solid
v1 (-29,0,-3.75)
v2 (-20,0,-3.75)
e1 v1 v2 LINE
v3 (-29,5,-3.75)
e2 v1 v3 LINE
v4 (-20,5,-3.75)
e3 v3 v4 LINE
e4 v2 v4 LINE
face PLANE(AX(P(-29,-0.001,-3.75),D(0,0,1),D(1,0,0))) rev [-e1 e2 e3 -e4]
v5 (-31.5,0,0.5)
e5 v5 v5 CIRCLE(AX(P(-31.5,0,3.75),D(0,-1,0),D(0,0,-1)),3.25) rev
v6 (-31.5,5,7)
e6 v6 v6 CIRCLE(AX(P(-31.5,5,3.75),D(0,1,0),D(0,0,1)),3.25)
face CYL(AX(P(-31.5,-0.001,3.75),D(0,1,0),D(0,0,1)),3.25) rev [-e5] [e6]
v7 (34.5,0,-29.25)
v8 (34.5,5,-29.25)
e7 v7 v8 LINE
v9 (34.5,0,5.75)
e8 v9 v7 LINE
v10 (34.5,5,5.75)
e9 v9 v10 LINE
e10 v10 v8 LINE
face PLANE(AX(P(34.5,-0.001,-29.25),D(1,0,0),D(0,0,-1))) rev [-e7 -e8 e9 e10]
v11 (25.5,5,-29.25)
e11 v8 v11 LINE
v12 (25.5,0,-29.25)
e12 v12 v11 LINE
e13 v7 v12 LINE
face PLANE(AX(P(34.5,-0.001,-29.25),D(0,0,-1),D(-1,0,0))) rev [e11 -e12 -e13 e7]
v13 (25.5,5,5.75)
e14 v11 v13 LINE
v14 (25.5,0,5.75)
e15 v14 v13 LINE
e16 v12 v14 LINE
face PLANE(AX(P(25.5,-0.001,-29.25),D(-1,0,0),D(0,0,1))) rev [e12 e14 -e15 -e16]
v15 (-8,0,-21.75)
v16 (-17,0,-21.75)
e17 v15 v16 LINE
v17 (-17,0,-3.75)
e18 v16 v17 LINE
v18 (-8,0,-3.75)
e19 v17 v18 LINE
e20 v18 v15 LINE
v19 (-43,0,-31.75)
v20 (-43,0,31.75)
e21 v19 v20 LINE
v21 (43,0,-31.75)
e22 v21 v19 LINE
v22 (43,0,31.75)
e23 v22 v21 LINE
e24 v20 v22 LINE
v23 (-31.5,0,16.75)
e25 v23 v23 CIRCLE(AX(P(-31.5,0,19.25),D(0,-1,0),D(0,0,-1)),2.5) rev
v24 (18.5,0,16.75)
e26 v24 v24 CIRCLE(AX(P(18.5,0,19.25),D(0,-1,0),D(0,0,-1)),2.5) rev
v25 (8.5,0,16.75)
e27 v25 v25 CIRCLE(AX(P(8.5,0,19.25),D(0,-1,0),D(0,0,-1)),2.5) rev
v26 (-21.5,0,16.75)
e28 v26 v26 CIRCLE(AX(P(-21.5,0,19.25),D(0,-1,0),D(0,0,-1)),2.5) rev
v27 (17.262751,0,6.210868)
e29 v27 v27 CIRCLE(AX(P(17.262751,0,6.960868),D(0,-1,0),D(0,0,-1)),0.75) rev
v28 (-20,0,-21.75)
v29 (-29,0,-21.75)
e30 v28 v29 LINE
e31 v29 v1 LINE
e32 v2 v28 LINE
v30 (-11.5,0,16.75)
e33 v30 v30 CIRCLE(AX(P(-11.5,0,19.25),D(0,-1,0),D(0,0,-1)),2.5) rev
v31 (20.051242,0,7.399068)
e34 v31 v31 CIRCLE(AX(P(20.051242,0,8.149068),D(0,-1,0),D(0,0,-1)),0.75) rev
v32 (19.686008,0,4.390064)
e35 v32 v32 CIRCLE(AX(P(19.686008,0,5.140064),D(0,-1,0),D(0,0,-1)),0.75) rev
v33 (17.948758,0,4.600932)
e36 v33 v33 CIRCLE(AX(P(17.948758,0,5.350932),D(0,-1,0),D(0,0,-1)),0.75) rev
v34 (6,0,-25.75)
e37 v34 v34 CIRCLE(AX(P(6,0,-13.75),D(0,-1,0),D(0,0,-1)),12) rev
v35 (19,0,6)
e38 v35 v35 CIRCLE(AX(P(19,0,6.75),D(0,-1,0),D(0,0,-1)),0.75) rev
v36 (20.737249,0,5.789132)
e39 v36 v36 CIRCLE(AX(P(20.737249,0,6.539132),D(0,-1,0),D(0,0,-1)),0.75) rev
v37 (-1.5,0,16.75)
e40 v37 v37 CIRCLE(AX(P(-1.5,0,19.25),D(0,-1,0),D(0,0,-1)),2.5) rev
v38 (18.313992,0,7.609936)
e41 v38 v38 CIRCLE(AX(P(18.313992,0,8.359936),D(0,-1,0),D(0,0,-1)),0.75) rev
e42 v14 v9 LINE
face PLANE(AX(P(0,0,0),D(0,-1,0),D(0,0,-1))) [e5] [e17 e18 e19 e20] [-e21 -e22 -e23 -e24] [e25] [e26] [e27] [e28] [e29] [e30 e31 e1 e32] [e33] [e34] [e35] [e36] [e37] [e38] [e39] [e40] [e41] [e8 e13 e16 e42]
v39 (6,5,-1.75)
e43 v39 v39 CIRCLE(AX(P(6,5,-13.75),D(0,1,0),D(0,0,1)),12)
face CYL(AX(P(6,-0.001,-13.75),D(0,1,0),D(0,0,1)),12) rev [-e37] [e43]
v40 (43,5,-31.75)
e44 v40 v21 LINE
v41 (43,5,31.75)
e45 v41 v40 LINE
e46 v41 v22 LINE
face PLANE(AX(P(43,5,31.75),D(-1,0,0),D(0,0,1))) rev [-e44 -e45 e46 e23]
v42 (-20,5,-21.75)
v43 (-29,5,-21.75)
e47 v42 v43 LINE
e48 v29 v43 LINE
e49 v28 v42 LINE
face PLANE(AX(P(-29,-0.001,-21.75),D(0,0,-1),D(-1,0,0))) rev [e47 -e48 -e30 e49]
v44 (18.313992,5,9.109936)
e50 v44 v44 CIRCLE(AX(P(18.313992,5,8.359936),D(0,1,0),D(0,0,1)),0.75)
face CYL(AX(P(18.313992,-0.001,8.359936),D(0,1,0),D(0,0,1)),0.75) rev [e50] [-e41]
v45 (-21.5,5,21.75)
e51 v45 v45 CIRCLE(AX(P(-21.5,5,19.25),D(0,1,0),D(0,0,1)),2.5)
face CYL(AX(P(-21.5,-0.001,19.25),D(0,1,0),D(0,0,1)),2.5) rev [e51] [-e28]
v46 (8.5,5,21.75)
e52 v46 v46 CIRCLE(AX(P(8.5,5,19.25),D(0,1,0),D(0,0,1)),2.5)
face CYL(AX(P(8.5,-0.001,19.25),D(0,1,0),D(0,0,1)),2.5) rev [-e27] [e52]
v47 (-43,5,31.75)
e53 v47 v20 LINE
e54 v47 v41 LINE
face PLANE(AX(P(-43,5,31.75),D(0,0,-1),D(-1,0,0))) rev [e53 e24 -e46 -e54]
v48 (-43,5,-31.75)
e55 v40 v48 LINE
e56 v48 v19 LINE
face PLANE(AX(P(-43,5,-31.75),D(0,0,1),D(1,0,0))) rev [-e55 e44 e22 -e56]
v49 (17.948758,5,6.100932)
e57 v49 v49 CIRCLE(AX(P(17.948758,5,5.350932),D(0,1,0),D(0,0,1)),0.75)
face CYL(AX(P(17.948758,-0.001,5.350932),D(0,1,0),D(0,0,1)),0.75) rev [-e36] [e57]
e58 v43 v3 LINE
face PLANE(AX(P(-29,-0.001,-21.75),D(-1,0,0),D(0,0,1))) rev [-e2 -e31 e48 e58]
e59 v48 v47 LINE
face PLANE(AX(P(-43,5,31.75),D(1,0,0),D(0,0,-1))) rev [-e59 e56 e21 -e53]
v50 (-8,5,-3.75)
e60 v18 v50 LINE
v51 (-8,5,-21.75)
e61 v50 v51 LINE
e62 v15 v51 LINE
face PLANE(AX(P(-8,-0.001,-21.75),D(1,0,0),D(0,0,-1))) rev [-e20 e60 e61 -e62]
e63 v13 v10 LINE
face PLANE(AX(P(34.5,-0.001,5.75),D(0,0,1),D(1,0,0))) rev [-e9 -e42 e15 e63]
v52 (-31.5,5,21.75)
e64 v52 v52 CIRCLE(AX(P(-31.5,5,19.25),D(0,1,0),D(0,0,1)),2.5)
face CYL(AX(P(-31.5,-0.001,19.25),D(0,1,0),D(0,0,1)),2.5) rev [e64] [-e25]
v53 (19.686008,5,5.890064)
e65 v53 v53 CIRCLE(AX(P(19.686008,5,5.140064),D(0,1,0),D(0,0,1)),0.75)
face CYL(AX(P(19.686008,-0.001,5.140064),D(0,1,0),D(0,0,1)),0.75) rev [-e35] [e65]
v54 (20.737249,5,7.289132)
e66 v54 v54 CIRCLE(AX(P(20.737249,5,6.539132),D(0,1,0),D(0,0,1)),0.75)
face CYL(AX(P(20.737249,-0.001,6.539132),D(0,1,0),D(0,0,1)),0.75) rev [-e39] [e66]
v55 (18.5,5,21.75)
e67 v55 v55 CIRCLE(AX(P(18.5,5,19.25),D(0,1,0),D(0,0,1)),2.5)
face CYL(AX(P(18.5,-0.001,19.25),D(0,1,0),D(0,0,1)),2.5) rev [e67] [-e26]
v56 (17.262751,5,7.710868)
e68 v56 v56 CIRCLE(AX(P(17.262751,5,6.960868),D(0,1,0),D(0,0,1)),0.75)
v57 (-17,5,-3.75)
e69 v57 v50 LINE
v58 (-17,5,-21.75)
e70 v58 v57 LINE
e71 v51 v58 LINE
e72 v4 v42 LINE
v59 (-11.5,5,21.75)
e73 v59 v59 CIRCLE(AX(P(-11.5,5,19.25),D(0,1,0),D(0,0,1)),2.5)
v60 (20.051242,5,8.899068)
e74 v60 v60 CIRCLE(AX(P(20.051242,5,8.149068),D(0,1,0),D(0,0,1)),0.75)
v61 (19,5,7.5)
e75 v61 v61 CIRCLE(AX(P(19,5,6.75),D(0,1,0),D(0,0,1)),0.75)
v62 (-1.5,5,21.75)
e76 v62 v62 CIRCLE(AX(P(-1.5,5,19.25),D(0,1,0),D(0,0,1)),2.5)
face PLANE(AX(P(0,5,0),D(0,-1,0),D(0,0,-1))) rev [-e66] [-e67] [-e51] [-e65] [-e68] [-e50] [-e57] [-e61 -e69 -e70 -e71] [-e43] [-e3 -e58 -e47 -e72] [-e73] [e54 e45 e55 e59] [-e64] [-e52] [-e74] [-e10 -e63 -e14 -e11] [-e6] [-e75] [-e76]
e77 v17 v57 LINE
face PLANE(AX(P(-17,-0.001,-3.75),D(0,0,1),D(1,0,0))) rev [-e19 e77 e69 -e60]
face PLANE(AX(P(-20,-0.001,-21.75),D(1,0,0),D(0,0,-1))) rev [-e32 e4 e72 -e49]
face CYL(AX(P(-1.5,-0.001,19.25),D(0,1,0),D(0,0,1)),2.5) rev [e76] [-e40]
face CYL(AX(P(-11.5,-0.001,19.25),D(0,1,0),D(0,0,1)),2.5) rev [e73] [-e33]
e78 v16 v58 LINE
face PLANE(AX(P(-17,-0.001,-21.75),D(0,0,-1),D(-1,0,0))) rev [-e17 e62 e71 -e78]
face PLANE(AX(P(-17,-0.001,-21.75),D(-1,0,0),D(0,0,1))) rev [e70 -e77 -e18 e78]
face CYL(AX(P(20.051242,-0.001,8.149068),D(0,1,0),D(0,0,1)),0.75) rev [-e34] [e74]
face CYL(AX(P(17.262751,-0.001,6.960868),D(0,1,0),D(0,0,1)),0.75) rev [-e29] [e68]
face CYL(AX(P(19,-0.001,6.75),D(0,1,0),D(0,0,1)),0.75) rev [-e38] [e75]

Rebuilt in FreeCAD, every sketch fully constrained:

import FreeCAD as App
import Part
import Sketcher


def add_polygon(sketch, points):
    """Adds a closed chain of lines whose ends are joined by coincident constraints."""
    first, n = sketch.GeometryCount, len(points)
    for a, b in zip(points, points[1:] + points[:1]):
        sketch.addGeometry(Part.LineSegment(App.Vector(*a, 0), App.Vector(*b, 0)), False)
    for i in range(n):
        sketch.addConstraint(Sketcher.Constraint("Coincident", first + i, 2, first + (i + 1) % n, 1))

doc = App.newDocument("Part")
params = doc.addObject("Spreadsheet::Sheet", "Params")
for row, (alias, value) in enumerate([
    ("sketch1_width", "86 mm"),
    ("sketch1_height", "63.5 mm"),
    ("pad1_length", "5 mm"),
    ("sketch2_diameter", "5 mm"),
    ("sketch3_diameter", "5 mm"),
    ("sketch4_diameter", "5 mm"),
    ("sketch5_diameter", "5 mm"),
    ("sketch6_diameter", "5 mm"),
    ("sketch7_diameter", "5 mm"),
    ("sketch8_diameter", "6.5 mm"),
    ("sketch9_diameter", "24 mm"),
    ("sketch10_diameter", "1.5 mm"),
    ("sketch11_diameter", "1.5 mm"),
    ("sketch12_diameter", "1.5 mm"),
    ("sketch13_diameter", "1.5 mm"),
    ("sketch14_diameter", "1.5 mm"),
    ("sketch15_diameter", "1.5 mm"),
    ("sketch16_diameter", "1.5 mm"),
    ("sketch17_width", "9 mm"),
    ("sketch17_height", "18 mm"),
    ("sketch18_width", "9 mm"),
    ("sketch18_height", "18 mm"),
    ("sketch19_width", "9 mm"),
    ("sketch19_height", "35 mm"),
], start=1):
    params.set(f"A{row}", alias)
    params.set(f"B{row}", "=" + value)
    params.setAlias(f"B{row}", alias)

body = doc.addObject("PartDesign::Body", "Body")

# Sketch on XZ plane
sketch1 = body.newObject("Sketcher::SketchObject", "Sketch")
sketch1.AttachmentSupport = (doc.getObject("XZ_Plane"), [""])
sketch1.MapMode = "FlatFace"
add_polygon(sketch1, [(-43, -32), (-43, 32), (43, 32), (43, -32)])  # lines 0-3
sketch1.addConstraint([
    Sketcher.Constraint("Vertical", 0),
    Sketcher.Constraint("Horizontal", 1),
    Sketcher.Constraint("Vertical", 2),
    Sketcher.Constraint("Horizontal", 3),
    Sketcher.Constraint("Symmetric", 0, 2, 2, 2, -1, 1),
    Sketcher.Constraint("DistanceX", 1, 1, 1, 2, 86.0),
    Sketcher.Constraint("DistanceY", 0, 1, 0, 2, 63.5),
])
sketch1.setExpression("Constraints[9]", "Params.sketch1_width")
sketch1.setExpression("Constraints[10]", "Params.sketch1_height")
pad1 = body.newObject("PartDesign::Pad", "Pad")
pad1.Profile = sketch1
pad1.setExpression("Length", "Params.pad1_length")
pad1.Reversed = True

# Sketch on XZ plane
sketch2 = body.newObject("Sketcher::SketchObject", "Sketch001")
sketch2.AttachmentSupport = (doc.getObject("XZ_Plane"), [""])
sketch2.MapMode = "FlatFace"
sketch2.AttachmentOffset = App.Placement(App.Vector(0, 0, -5), App.Rotation())
sketch2.addGeometry(Part.Circle(App.Vector(-31.5, 19.2, 0), App.Vector(0, 0, 1), 2.5), False)
sketch2.addConstraint([
    Sketcher.Constraint("Diameter", 0, 5.0),
    Sketcher.Constraint("DistanceX", 0, 3, -1, 1, 31.5),
    Sketcher.Constraint("DistanceY", -1, 1, 0, 3, 19.25),
])
sketch2.setExpression("Constraints[0]", "Params.sketch2_diameter")
pocket1 = body.newObject("PartDesign::Pocket", "Pocket")
pocket1.Profile = sketch2
pocket1.Type = "UpToFirst"
pocket1.Reversed = True

# Sketch on XZ plane
sketch3 = body.newObject("Sketcher::SketchObject", "Sketch002")
sketch3.AttachmentSupport = (doc.getObject("XZ_Plane"), [""])
sketch3.MapMode = "FlatFace"
sketch3.AttachmentOffset = App.Placement(App.Vector(0, 0, -5), App.Rotation())
sketch3.addGeometry(Part.Circle(App.Vector(-21.5, 19.2, 0), App.Vector(0, 0, 1), 2.5), False)
sketch3.addConstraint([
    Sketcher.Constraint("Diameter", 0, 5.0),
    Sketcher.Constraint("DistanceX", 0, 3, -1, 1, 21.5),
    Sketcher.Constraint("DistanceY", -1, 1, 0, 3, 19.25),
])
sketch3.setExpression("Constraints[0]", "Params.sketch3_diameter")
pocket2 = body.newObject("PartDesign::Pocket", "Pocket001")
pocket2.Profile = sketch3
pocket2.Type = "UpToFirst"
pocket2.Reversed = True

# Sketch on XZ plane
sketch4 = body.newObject("Sketcher::SketchObject", "Sketch003")
sketch4.AttachmentSupport = (doc.getObject("XZ_Plane"), [""])
sketch4.MapMode = "FlatFace"
sketch4.AttachmentOffset = App.Placement(App.Vector(0, 0, -5), App.Rotation())
sketch4.addGeometry(Part.Circle(App.Vector(-11.5, 19.2, 0), App.Vector(0, 0, 1), 2.5), False)
sketch4.addConstraint([
    Sketcher.Constraint("Diameter", 0, 5.0),
    Sketcher.Constraint("DistanceX", 0, 3, -1, 1, 11.5),
    Sketcher.Constraint("DistanceY", -1, 1, 0, 3, 19.25),
])
sketch4.setExpression("Constraints[0]", "Params.sketch4_diameter")
pocket3 = body.newObject("PartDesign::Pocket", "Pocket002")
pocket3.Profile = sketch4
pocket3.Type = "UpToFirst"
pocket3.Reversed = True

# Sketch on XZ plane
sketch5 = body.newObject("Sketcher::SketchObject", "Sketch004")
sketch5.AttachmentSupport = (doc.getObject("XZ_Plane"), [""])
sketch5.MapMode = "FlatFace"
sketch5.AttachmentOffset = App.Placement(App.Vector(0, 0, -5), App.Rotation())
sketch5.addGeometry(Part.Circle(App.Vector(-1.5, 19.2, 0), App.Vector(0, 0, 1), 2.5), False)
sketch5.addConstraint([
    Sketcher.Constraint("Diameter", 0, 5.0),
    Sketcher.Constraint("DistanceX", 0, 3, -1, 1, 1.5),
    Sketcher.Constraint("DistanceY", -1, 1, 0, 3, 19.25),
])
sketch5.setExpression("Constraints[0]", "Params.sketch5_diameter")
pocket4 = body.newObject("PartDesign::Pocket", "Pocket003")
pocket4.Profile = sketch5
pocket4.Type = "UpToFirst"
pocket4.Reversed = True

# Sketch on XZ plane
sketch6 = body.newObject("Sketcher::SketchObject", "Sketch005")
sketch6.AttachmentSupport = (doc.getObject("XZ_Plane"), [""])
sketch6.MapMode = "FlatFace"
sketch6.AttachmentOffset = App.Placement(App.Vector(0, 0, -5), App.Rotation())
sketch6.addGeometry(Part.Circle(App.Vector(8.5, 19.2, 0), App.Vector(0, 0, 1), 2.5), False)
sketch6.addConstraint([
    Sketcher.Constraint("Diameter", 0, 5.0),
    Sketcher.Constraint("DistanceX", -1, 1, 0, 3, 8.5),
    Sketcher.Constraint("DistanceY", -1, 1, 0, 3, 19.25),
])
sketch6.setExpression("Constraints[0]", "Params.sketch6_diameter")
pocket5 = body.newObject("PartDesign::Pocket", "Pocket004")
pocket5.Profile = sketch6
pocket5.Type = "UpToFirst"
pocket5.Reversed = True

# Sketch on XZ plane
sketch7 = body.newObject("Sketcher::SketchObject", "Sketch006")
sketch7.AttachmentSupport = (doc.getObject("XZ_Plane"), [""])
sketch7.MapMode = "FlatFace"
sketch7.AttachmentOffset = App.Placement(App.Vector(0, 0, -5), App.Rotation())
sketch7.addGeometry(Part.Circle(App.Vector(18.5, 19.2, 0), App.Vector(0, 0, 1), 2.5), False)
sketch7.addConstraint([
    Sketcher.Constraint("Diameter", 0, 5.0),
    Sketcher.Constraint("DistanceX", -1, 1, 0, 3, 18.5),
    Sketcher.Constraint("DistanceY", -1, 1, 0, 3, 19.25),
])
sketch7.setExpression("Constraints[0]", "Params.sketch7_diameter")
pocket6 = body.newObject("PartDesign::Pocket", "Pocket005")
pocket6.Profile = sketch7
pocket6.Type = "UpToFirst"
pocket6.Reversed = True

# Sketch on XZ plane
sketch8 = body.newObject("Sketcher::SketchObject", "Sketch007")
sketch8.AttachmentSupport = (doc.getObject("XZ_Plane"), [""])
sketch8.MapMode = "FlatFace"
sketch8.AttachmentOffset = App.Placement(App.Vector(0, 0, -5), App.Rotation())
sketch8.addGeometry(Part.Circle(App.Vector(-31.5, 3.8, 0), App.Vector(0, 0, 1), 3.2), False)
sketch8.addConstraint([
    Sketcher.Constraint("Diameter", 0, 6.5),
    Sketcher.Constraint("DistanceX", 0, 3, -1, 1, 31.5),
    Sketcher.Constraint("DistanceY", -1, 1, 0, 3, 3.75),
])
sketch8.setExpression("Constraints[0]", "Params.sketch8_diameter")
pocket7 = body.newObject("PartDesign::Pocket", "Pocket006")
pocket7.Profile = sketch8
pocket7.Type = "UpToFirst"
pocket7.Reversed = True

# Sketch on XZ plane
sketch9 = body.newObject("Sketcher::SketchObject", "Sketch008")
sketch9.AttachmentSupport = (doc.getObject("XZ_Plane"), [""])
sketch9.MapMode = "FlatFace"
sketch9.AttachmentOffset = App.Placement(App.Vector(0, 0, -5), App.Rotation())
sketch9.addGeometry(Part.Circle(App.Vector(6, -14, 0), App.Vector(0, 0, 1), 12), False)
sketch9.addConstraint([
    Sketcher.Constraint("Diameter", 0, 24.0),
    Sketcher.Constraint("DistanceX", -1, 1, 0, 3, 6.0),
    Sketcher.Constraint("DistanceY", 0, 3, -1, 1, 13.75),
])
sketch9.setExpression("Constraints[0]", "Params.sketch9_diameter")
pocket8 = body.newObject("PartDesign::Pocket", "Pocket007")
pocket8.Profile = sketch9
pocket8.Type = "UpToFirst"
pocket8.Reversed = True

# Sketch on XZ plane
sketch10 = body.newObject("Sketcher::SketchObject", "Sketch009")
sketch10.AttachmentSupport = (doc.getObject("XZ_Plane"), [""])
sketch10.MapMode = "FlatFace"
sketch10.AttachmentOffset = App.Placement(App.Vector(0, 0, -5), App.Rotation())
sketch10.addGeometry(Part.Circle(App.Vector(17.9, 5.4, 0), App.Vector(0, 0, 1), 0.8), False)
sketch10.addConstraint([
    Sketcher.Constraint("Diameter", 0, 1.5),
    Sketcher.Constraint("DistanceX", -1, 1, 0, 3, 17.948758),
    Sketcher.Constraint("DistanceY", -1, 1, 0, 3, 5.350932),
])
sketch10.setExpression("Constraints[0]", "Params.sketch10_diameter")
pocket9 = body.newObject("PartDesign::Pocket", "Pocket008")
pocket9.Profile = sketch10
pocket9.Type = "UpToFirst"
pocket9.Reversed = True

# Sketch on XZ plane
sketch11 = body.newObject("Sketcher::SketchObject", "Sketch010")
sketch11.AttachmentSupport = (doc.getObject("XZ_Plane"), [""])
sketch11.MapMode = "FlatFace"
sketch11.AttachmentOffset = App.Placement(App.Vector(0, 0, -5), App.Rotation())
sketch11.addGeometry(Part.Circle(App.Vector(19, 6.8, 0), App.Vector(0, 0, 1), 0.8), False)
sketch11.addConstraint([
    Sketcher.Constraint("Diameter", 0, 1.5),
    Sketcher.Constraint("DistanceX", -1, 1, 0, 3, 19.0),
    Sketcher.Constraint("DistanceY", -1, 1, 0, 3, 6.75),
])
sketch11.setExpression("Constraints[0]", "Params.sketch11_diameter")
pocket10 = body.newObject("PartDesign::Pocket", "Pocket009")
pocket10.Profile = sketch11
pocket10.Type = "UpToFirst"
pocket10.Reversed = True

# Sketch on XZ plane
sketch12 = body.newObject("Sketcher::SketchObject", "Sketch011")
sketch12.AttachmentSupport = (doc.getObject("XZ_Plane"), [""])
sketch12.MapMode = "FlatFace"
sketch12.AttachmentOffset = App.Placement(App.Vector(0, 0, -5), App.Rotation())
sketch12.addGeometry(Part.Circle(App.Vector(19.7, 5.1, 0), App.Vector(0, 0, 1), 0.8), False)
sketch12.addConstraint([
    Sketcher.Constraint("Diameter", 0, 1.5),
    Sketcher.Constraint("DistanceX", -1, 1, 0, 3, 19.686008),
    Sketcher.Constraint("DistanceY", -1, 1, 0, 3, 5.140064),
])
sketch12.setExpression("Constraints[0]", "Params.sketch12_diameter")
pocket11 = body.newObject("PartDesign::Pocket", "Pocket010")
pocket11.Profile = sketch12
pocket11.Type = "UpToFirst"
pocket11.Reversed = True

# Sketch on XZ plane
sketch13 = body.newObject("Sketcher::SketchObject", "Sketch012")
sketch13.AttachmentSupport = (doc.getObject("XZ_Plane"), [""])
sketch13.MapMode = "FlatFace"
sketch13.AttachmentOffset = App.Placement(App.Vector(0, 0, -5), App.Rotation())
sketch13.addGeometry(Part.Circle(App.Vector(20.7, 6.5, 0), App.Vector(0, 0, 1), 0.8), False)
sketch13.addConstraint([
    Sketcher.Constraint("Diameter", 0, 1.5),
    Sketcher.Constraint("DistanceX", -1, 1, 0, 3, 20.737249),
    Sketcher.Constraint("DistanceY", -1, 1, 0, 3, 6.539132),
])
sketch13.setExpression("Constraints[0]", "Params.sketch13_diameter")
pocket12 = body.newObject("PartDesign::Pocket", "Pocket011")
pocket12.Profile = sketch13
pocket12.Type = "UpToFirst"
pocket12.Reversed = True

# Sketch on XZ plane
sketch14 = body.newObject("Sketcher::SketchObject", "Sketch013")
sketch14.AttachmentSupport = (doc.getObject("XZ_Plane"), [""])
sketch14.MapMode = "FlatFace"
sketch14.AttachmentOffset = App.Placement(App.Vector(0, 0, -5), App.Rotation())
sketch14.addGeometry(Part.Circle(App.Vector(20.1, 8.1, 0), App.Vector(0, 0, 1), 0.8), False)
sketch14.addConstraint([
    Sketcher.Constraint("Diameter", 0, 1.5),
    Sketcher.Constraint("DistanceX", -1, 1, 0, 3, 20.051242),
    Sketcher.Constraint("DistanceY", -1, 1, 0, 3, 8.149068),
])
sketch14.setExpression("Constraints[0]", "Params.sketch14_diameter")
pocket13 = body.newObject("PartDesign::Pocket", "Pocket012")
pocket13.Profile = sketch14
pocket13.Type = "UpToFirst"
pocket13.Reversed = True

# Sketch on XZ plane
sketch15 = body.newObject("Sketcher::SketchObject", "Sketch014")
sketch15.AttachmentSupport = (doc.getObject("XZ_Plane"), [""])
sketch15.MapMode = "FlatFace"
sketch15.AttachmentOffset = App.Placement(App.Vector(0, 0, -5), App.Rotation())
sketch15.addGeometry(Part.Circle(App.Vector(18.3, 8.4, 0), App.Vector(0, 0, 1), 0.8), False)
sketch15.addConstraint([
    Sketcher.Constraint("Diameter", 0, 1.5),
    Sketcher.Constraint("DistanceX", -1, 1, 0, 3, 18.313992),
    Sketcher.Constraint("DistanceY", -1, 1, 0, 3, 8.359936),
])
sketch15.setExpression("Constraints[0]", "Params.sketch15_diameter")
pocket14 = body.newObject("PartDesign::Pocket", "Pocket013")
pocket14.Profile = sketch15
pocket14.Type = "UpToFirst"
pocket14.Reversed = True

# Sketch on XZ plane
sketch16 = body.newObject("Sketcher::SketchObject", "Sketch015")
sketch16.AttachmentSupport = (doc.getObject("XZ_Plane"), [""])
sketch16.MapMode = "FlatFace"
sketch16.AttachmentOffset = App.Placement(App.Vector(0, 0, -5), App.Rotation())
sketch16.addGeometry(Part.Circle(App.Vector(17.3, 7, 0), App.Vector(0, 0, 1), 0.8), False)
sketch16.addConstraint([
    Sketcher.Constraint("Diameter", 0, 1.5),
    Sketcher.Constraint("DistanceX", -1, 1, 0, 3, 17.262751),
    Sketcher.Constraint("DistanceY", -1, 1, 0, 3, 6.960868),
])
sketch16.setExpression("Constraints[0]", "Params.sketch16_diameter")
pocket15 = body.newObject("PartDesign::Pocket", "Pocket014")
pocket15.Profile = sketch16
pocket15.Type = "UpToFirst"
pocket15.Reversed = True

# Sketch on XZ plane
sketch17 = body.newObject("Sketcher::SketchObject", "Sketch016")
sketch17.AttachmentSupport = (doc.getObject("XZ_Plane"), [""])
sketch17.MapMode = "FlatFace"
sketch17.AttachmentOffset = App.Placement(App.Vector(0, 0, -5), App.Rotation())
add_polygon(sketch17, [(-29, -22), (-29, -4), (-20, -4), (-20, -22)])  # lines 0-3
sketch17.addConstraint([
    Sketcher.Constraint("Vertical", 0),
    Sketcher.Constraint("Horizontal", 1),
    Sketcher.Constraint("Vertical", 2),
    Sketcher.Constraint("Horizontal", 3),
    Sketcher.Constraint("DistanceX", 1, 1, 1, 2, 9.0),
    Sketcher.Constraint("DistanceY", 0, 1, 0, 2, 18.0),
    Sketcher.Constraint("DistanceX", 0, 2, -1, 1, 29.0),
    Sketcher.Constraint("DistanceY", 0, 2, -1, 1, 3.75),
])
sketch17.setExpression("Constraints[8]", "Params.sketch17_width")
sketch17.setExpression("Constraints[9]", "Params.sketch17_height")
pocket16 = body.newObject("PartDesign::Pocket", "Pocket015")
pocket16.Profile = sketch17
pocket16.Type = "UpToFirst"
pocket16.Reversed = True

# Sketch on XZ plane
sketch18 = body.newObject("Sketcher::SketchObject", "Sketch017")
sketch18.AttachmentSupport = (doc.getObject("XZ_Plane"), [""])
sketch18.MapMode = "FlatFace"
sketch18.AttachmentOffset = App.Placement(App.Vector(0, 0, -5), App.Rotation())
add_polygon(sketch18, [(-17, -22), (-17, -4), (-8, -4), (-8, -22)])  # lines 0-3
sketch18.addConstraint([
    Sketcher.Constraint("Vertical", 0),
    Sketcher.Constraint("Horizontal", 1),
    Sketcher.Constraint("Vertical", 2),
    Sketcher.Constraint("Horizontal", 3),
    Sketcher.Constraint("DistanceX", 1, 1, 1, 2, 9.0),
    Sketcher.Constraint("DistanceY", 0, 1, 0, 2, 18.0),
    Sketcher.Constraint("DistanceX", 0, 2, -1, 1, 17.0),
    Sketcher.Constraint("DistanceY", 0, 2, -1, 1, 3.75),
])
sketch18.setExpression("Constraints[8]", "Params.sketch18_width")
sketch18.setExpression("Constraints[9]", "Params.sketch18_height")
pocket17 = body.newObject("PartDesign::Pocket", "Pocket016")
pocket17.Profile = sketch18
pocket17.Type = "UpToFirst"
pocket17.Reversed = True

# Sketch on XZ plane
sketch19 = body.newObject("Sketcher::SketchObject", "Sketch018")
sketch19.AttachmentSupport = (doc.getObject("XZ_Plane"), [""])
sketch19.MapMode = "FlatFace"
sketch19.AttachmentOffset = App.Placement(App.Vector(0, 0, -5), App.Rotation())
add_polygon(sketch19, [(26, -29), (26, 6), (34, 6), (34, -29)])  # lines 0-3
sketch19.addConstraint([
    Sketcher.Constraint("Vertical", 0),
    Sketcher.Constraint("Horizontal", 1),
    Sketcher.Constraint("Vertical", 2),
    Sketcher.Constraint("Horizontal", 3),
    Sketcher.Constraint("DistanceX", 1, 1, 1, 2, 9.0),
    Sketcher.Constraint("DistanceY", 0, 1, 0, 2, 35.0),
    Sketcher.Constraint("DistanceX", -1, 1, 0, 2, 25.5),
    Sketcher.Constraint("DistanceY", -1, 1, 0, 2, 5.75),
])
sketch19.setExpression("Constraints[8]", "Params.sketch19_width")
sketch19.setExpression("Constraints[9]", "Params.sketch19_height")
pocket18 = body.newObject("PartDesign::Pocket", "Pocket017")
pocket18.Profile = sketch19
pocket18.Type = "UpToFirst"
pocket18.Reversed = True

doc.recompute()
